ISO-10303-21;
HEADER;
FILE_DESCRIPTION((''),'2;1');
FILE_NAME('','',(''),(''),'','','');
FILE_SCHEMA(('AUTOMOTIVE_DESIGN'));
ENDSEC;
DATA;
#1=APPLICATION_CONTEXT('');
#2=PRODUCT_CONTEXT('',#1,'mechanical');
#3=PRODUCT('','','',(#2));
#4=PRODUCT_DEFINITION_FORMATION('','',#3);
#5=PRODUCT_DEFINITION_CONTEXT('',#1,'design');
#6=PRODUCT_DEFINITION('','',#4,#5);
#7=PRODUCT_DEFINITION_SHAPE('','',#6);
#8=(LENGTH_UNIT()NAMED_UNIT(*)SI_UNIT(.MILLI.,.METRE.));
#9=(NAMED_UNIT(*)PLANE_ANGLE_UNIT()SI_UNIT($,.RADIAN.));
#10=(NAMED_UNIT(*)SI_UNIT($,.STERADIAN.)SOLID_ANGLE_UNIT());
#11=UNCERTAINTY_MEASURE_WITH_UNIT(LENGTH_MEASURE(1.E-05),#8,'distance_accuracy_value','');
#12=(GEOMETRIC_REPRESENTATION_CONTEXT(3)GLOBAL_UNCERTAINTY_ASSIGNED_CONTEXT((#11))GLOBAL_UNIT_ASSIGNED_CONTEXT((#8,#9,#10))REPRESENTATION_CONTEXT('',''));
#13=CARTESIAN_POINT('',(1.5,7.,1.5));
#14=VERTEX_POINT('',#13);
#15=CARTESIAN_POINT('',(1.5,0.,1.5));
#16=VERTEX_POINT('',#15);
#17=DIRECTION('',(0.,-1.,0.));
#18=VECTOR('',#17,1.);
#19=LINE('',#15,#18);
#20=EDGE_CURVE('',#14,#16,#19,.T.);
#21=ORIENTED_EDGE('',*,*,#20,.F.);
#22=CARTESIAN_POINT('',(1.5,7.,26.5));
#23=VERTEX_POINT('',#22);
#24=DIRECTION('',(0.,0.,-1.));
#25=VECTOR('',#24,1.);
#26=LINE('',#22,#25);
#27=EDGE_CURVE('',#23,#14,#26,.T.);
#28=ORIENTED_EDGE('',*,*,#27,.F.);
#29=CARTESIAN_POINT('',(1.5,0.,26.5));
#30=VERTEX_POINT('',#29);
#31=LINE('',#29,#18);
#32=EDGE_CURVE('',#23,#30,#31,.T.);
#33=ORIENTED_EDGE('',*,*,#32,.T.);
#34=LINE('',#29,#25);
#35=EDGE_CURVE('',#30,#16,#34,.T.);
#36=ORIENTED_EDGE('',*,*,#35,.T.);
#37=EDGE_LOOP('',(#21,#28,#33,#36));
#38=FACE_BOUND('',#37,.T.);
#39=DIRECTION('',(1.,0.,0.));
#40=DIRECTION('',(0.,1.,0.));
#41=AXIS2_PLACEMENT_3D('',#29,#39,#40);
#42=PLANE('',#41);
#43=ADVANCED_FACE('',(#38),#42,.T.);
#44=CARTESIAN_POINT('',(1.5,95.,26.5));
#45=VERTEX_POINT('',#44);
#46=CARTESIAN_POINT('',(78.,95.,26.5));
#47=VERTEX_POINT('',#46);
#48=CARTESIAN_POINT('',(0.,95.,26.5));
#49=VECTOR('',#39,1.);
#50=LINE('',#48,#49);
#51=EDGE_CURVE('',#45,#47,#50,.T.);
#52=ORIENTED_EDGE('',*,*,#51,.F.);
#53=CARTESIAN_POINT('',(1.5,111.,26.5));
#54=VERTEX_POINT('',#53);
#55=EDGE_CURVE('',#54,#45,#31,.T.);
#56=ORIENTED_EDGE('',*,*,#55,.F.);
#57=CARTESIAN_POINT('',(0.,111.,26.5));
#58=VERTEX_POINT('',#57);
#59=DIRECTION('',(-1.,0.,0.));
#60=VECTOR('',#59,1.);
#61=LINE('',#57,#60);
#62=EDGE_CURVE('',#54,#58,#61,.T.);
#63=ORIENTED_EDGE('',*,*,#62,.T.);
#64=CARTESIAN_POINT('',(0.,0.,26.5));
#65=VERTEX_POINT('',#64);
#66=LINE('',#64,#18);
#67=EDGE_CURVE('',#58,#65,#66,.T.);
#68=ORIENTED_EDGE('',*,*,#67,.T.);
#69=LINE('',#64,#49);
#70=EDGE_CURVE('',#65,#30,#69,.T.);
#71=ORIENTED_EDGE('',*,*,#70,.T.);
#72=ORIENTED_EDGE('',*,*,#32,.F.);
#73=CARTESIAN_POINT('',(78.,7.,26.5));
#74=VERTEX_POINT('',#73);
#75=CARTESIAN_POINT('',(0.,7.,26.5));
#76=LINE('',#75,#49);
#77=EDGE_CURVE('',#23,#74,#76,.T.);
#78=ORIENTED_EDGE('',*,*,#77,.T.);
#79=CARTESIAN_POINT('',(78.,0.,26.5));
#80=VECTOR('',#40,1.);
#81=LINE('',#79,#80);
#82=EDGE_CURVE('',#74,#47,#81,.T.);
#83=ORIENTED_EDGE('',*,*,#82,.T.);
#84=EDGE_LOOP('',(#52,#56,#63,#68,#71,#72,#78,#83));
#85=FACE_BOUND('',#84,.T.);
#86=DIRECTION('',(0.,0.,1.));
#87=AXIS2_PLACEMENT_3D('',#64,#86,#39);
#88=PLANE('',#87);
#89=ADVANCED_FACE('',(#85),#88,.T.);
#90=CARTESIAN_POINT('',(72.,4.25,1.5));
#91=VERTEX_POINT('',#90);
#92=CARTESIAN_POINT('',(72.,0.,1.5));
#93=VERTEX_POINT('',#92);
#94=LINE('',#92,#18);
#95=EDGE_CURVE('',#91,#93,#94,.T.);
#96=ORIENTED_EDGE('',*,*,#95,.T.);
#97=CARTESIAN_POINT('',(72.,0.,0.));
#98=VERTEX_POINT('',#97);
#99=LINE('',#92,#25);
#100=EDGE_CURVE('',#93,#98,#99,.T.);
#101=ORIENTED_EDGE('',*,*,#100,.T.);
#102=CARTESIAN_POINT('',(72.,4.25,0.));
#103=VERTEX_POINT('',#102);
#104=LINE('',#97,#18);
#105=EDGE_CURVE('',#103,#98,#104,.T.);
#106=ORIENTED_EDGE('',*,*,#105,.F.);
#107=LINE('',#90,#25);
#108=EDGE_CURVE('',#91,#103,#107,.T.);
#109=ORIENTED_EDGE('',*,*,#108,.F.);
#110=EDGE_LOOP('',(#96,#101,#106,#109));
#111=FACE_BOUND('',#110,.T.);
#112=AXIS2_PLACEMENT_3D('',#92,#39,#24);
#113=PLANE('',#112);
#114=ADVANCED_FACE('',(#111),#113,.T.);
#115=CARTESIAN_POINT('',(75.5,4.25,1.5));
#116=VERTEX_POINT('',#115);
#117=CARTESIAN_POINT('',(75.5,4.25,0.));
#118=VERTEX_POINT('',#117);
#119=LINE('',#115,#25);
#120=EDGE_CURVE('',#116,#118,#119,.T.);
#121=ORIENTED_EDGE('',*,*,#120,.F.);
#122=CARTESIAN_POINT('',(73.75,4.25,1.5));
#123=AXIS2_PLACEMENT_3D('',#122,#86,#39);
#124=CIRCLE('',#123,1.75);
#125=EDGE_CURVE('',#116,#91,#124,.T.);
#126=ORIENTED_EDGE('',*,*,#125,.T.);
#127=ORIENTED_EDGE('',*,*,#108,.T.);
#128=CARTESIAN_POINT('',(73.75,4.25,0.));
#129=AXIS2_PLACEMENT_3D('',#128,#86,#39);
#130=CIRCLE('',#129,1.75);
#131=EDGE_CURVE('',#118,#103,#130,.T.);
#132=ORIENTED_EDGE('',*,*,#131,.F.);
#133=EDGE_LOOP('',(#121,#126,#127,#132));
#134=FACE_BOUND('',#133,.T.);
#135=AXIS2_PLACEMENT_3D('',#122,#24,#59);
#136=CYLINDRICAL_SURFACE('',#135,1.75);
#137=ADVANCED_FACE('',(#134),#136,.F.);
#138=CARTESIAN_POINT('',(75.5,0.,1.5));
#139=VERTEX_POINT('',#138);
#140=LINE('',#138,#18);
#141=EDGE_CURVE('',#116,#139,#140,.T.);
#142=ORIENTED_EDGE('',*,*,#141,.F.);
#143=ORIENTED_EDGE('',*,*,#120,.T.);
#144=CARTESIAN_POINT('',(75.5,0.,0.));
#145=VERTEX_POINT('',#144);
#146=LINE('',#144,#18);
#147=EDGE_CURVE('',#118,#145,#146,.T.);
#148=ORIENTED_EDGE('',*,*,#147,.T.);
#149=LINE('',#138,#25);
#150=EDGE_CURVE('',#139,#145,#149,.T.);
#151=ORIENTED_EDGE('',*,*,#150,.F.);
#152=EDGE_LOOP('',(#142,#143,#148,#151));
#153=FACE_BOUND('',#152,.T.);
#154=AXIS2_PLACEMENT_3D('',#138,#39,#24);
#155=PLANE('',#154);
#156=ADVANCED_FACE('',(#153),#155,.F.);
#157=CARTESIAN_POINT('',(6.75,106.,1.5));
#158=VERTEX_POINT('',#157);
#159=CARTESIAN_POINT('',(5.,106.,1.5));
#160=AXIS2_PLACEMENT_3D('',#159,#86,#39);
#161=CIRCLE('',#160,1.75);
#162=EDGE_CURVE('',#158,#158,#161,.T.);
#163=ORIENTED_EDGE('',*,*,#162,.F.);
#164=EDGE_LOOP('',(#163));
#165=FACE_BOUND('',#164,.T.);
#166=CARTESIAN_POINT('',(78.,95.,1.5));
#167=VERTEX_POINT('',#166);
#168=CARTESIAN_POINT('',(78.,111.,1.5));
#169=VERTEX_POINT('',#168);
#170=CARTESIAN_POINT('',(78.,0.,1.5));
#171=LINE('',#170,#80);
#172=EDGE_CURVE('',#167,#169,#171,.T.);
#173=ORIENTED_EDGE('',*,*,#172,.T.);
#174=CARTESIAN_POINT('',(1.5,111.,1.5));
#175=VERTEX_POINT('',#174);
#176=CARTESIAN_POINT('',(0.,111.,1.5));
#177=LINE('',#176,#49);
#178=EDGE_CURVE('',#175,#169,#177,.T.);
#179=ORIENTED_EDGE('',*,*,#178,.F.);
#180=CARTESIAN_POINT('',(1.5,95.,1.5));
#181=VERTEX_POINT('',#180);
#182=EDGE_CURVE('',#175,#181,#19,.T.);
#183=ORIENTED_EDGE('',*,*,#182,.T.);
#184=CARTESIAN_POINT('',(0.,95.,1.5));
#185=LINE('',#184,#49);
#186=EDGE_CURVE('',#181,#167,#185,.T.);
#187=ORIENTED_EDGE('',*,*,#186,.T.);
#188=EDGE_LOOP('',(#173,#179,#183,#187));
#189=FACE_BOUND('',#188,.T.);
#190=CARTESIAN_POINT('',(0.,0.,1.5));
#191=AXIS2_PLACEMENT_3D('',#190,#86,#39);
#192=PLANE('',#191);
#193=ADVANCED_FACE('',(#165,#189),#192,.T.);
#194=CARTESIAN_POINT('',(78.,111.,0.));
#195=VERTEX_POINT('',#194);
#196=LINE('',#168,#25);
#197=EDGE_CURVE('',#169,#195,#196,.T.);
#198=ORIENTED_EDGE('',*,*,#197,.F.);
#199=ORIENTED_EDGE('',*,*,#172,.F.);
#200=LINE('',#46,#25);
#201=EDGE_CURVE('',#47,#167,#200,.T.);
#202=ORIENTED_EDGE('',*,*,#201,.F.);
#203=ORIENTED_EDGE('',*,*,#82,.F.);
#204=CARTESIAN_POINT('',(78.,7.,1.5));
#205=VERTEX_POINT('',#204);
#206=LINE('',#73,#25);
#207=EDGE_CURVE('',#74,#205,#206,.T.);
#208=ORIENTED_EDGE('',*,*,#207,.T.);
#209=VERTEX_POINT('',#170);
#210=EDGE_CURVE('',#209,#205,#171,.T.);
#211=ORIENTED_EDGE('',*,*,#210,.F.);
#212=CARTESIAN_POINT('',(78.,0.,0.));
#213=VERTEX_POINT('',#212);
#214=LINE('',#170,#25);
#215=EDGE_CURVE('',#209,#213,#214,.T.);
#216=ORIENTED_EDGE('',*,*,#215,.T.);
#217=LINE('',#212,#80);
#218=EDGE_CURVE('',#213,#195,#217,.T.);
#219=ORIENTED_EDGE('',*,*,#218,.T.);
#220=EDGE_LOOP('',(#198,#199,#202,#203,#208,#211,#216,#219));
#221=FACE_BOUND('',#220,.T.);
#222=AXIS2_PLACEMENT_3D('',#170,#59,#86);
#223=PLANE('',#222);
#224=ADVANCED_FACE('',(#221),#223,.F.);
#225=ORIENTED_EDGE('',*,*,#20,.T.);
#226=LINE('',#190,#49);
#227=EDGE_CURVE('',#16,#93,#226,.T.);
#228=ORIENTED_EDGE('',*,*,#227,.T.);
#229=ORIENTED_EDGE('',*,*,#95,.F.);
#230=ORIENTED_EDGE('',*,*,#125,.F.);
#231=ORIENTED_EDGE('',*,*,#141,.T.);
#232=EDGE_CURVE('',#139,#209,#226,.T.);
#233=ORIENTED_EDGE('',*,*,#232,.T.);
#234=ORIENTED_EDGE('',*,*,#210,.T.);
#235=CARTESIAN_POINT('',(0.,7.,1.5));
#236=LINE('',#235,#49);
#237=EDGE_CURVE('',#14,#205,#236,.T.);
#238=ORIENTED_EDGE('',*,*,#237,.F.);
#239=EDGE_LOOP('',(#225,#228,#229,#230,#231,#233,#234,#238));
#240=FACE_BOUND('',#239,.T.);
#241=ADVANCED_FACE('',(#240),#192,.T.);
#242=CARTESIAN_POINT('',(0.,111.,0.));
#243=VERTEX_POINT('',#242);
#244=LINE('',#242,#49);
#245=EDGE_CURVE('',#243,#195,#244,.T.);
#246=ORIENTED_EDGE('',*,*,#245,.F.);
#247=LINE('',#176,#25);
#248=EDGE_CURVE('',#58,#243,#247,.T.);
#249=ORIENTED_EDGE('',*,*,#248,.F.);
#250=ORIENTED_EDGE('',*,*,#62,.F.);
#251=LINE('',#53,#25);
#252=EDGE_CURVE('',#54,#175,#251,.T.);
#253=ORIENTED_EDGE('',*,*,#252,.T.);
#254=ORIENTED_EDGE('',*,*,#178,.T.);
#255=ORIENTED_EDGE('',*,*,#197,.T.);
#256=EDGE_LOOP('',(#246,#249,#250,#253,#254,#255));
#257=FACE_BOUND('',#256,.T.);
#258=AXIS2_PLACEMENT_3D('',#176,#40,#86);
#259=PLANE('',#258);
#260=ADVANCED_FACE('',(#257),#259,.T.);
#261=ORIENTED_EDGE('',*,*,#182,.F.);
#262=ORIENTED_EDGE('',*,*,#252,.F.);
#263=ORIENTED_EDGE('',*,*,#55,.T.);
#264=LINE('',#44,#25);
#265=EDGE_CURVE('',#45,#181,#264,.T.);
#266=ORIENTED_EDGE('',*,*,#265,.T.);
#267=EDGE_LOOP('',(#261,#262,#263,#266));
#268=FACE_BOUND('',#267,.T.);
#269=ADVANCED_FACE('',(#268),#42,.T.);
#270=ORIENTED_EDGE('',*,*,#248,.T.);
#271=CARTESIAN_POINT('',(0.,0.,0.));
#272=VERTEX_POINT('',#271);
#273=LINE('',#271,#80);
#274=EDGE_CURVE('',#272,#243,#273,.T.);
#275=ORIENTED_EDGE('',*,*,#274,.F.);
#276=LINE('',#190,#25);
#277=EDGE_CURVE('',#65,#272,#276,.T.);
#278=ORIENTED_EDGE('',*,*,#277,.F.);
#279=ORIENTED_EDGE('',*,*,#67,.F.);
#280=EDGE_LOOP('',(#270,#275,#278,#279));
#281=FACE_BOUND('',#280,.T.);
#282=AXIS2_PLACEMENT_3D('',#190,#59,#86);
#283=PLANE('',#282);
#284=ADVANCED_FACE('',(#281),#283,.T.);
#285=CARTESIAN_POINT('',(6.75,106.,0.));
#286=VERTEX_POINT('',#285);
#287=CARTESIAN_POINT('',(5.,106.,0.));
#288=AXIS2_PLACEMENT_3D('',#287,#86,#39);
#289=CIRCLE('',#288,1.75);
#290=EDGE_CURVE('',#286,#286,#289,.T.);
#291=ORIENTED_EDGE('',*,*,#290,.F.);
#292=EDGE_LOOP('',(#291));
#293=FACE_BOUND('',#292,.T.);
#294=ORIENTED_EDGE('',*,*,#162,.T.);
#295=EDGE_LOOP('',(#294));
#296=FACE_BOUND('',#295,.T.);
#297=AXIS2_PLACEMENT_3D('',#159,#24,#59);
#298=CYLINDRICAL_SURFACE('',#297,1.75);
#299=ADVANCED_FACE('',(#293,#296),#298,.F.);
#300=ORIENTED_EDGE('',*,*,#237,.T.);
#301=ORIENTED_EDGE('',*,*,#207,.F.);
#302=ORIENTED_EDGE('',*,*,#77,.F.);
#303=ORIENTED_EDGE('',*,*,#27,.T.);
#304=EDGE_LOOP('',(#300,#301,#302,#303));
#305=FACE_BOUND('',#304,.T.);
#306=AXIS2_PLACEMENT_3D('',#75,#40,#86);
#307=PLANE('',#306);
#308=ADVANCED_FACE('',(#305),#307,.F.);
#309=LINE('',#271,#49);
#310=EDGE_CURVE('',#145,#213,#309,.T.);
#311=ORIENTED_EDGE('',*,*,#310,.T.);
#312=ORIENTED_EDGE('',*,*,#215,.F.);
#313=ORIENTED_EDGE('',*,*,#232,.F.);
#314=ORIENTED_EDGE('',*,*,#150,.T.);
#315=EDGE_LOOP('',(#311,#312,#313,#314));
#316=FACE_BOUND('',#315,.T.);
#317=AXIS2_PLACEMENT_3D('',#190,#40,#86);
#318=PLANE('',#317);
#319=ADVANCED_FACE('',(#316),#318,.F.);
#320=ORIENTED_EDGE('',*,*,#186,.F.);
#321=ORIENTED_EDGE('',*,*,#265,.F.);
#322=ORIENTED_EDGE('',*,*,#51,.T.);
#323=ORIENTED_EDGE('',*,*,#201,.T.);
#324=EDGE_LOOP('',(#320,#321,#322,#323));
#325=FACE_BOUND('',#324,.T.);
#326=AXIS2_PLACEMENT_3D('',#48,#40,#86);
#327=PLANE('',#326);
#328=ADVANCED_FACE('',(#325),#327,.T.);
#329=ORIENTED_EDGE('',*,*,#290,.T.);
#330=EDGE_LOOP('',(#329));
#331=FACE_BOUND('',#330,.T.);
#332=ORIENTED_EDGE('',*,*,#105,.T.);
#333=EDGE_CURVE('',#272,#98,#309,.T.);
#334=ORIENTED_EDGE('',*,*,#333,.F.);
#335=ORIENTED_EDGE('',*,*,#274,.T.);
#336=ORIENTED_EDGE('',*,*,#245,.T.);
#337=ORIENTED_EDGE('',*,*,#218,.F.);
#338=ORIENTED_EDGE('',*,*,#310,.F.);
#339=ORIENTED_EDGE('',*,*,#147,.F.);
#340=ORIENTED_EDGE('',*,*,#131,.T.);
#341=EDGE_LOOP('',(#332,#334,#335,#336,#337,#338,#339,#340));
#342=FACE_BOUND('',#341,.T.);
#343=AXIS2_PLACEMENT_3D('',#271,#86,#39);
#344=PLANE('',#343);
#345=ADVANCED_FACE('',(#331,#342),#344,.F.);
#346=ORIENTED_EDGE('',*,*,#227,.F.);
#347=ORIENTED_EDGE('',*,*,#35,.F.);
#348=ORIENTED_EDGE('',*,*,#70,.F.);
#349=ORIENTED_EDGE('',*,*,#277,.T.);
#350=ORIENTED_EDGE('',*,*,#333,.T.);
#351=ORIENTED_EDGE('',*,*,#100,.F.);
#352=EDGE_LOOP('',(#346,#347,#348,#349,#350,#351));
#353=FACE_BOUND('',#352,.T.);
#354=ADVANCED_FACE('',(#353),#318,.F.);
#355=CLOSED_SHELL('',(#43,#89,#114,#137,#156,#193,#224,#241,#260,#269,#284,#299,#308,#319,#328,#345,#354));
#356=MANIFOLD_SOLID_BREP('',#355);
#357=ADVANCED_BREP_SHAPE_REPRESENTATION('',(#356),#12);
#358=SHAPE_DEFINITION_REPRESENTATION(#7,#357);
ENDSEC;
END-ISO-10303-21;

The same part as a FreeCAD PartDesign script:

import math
import FreeCAD as App
import Part
import Sketcher
from FreeCAD import Vector


def add_polygon(sketch, points):
    """Adds a closed chain of lines whose ends are joined by coincident constraints."""
    first, n = sketch.GeometryCount, len(points)
    for a, b in zip(points, points[1:] + points[:1]):
        sketch.addGeometry(Part.LineSegment(App.Vector(*a, 0), App.Vector(*b, 0)), False)
    for i in range(n):
        sketch.addConstraint(Sketcher.Constraint("Coincident", first + i, 2, first + (i + 1) % n, 1))

doc = App.newDocument("Part")
body = doc.addObject("PartDesign::Body", "Body")

sketch1 = body.newObject("Sketcher::SketchObject", "Sketch")
sketch1.AttachmentSupport = (doc.getObject("XY_Plane"), [""])
sketch1.MapMode = "FlatFace"
sketch1.addGeometry([
    Part.LineSegment(Vector(72, 0, 0), Vector(72, 4.2, 0)),
    Part.ArcOfCircle(Part.Circle(Vector(73.8, 4.2, 0), Vector(0, 0, 1), 1.8), math.radians(0), math.radians(180)),
    Part.LineSegment(Vector(75.5, 4.2, 0), Vector(75.5, 0, 0)),
    Part.LineSegment(Vector(75.5, 0, 0), Vector(78, 0, 0)),
    Part.LineSegment(Vector(78, 0, 0), Vector(78, 111, 0)),
    Part.LineSegment(Vector(78, 111, 0), Vector(0, 111, 0)),
    Part.LineSegment(Vector(0, 111, 0), Vector(0, 0, 0)),
    Part.LineSegment(Vector(0, 0, 0), Vector(72, 0, 0)),
    Part.Circle(Vector(5, 106, 0), Vector(0, 0, 1), 1.8),
], False)
sketch1.addConstraint([
    Sketcher.Constraint("Tangent", 0, 2, 1, 2),
    Sketcher.Constraint("Tangent", 1, 1, 2, 1),
    Sketcher.Constraint("Coincident", 2, 2, 3, 1),
    Sketcher.Constraint("Coincident", 3, 2, 4, 1),
    Sketcher.Constraint("Coincident", 4, 2, 5, 1),
    Sketcher.Constraint("Coincident", 5, 2, 6, 1),
    Sketcher.Constraint("Coincident", 6, 2, 7, 1),
    Sketcher.Constraint("Coincident", 7, 2, 0, 1),
    Sketcher.Constraint("Vertical", 0),
    Sketcher.Constraint("Vertical", 2),
    Sketcher.Constraint("Horizontal", 3),
    Sketcher.Constraint("Vertical", 4),
    Sketcher.Constraint("Horizontal", 5),
    Sketcher.Constraint("Vertical", 6),
    Sketcher.Constraint("Horizontal", 7),
    Sketcher.Constraint("Coincident", 6, 2, -1, 1),
    Sketcher.Constraint("Equal", 1, 8),
    Sketcher.Constraint("PointOnObject", 2, 2, -1),
    Sketcher.Constraint("Diameter", 8, 3.5),
    Sketcher.Constraint("DistanceX", 5, 2, 5, 1, 78.0),
    Sketcher.Constraint("DistanceX", 7, 1, 7, 2, 72.0),
    Sketcher.Constraint("DistanceY", 4, 1, 4, 2, 111.0),
    Sketcher.Constraint("DistanceX", -1, 1, 8, 3, 5.0),
    Sketcher.Constraint("DistanceY", -1, 1, 8, 3, 106.0),
    Sketcher.Constraint("DistanceY", 0, 1, 0, 2, 4.25),
])
pad1 = body.newObject("PartDesign::Pad", "Pad")
pad1.Profile = sketch1
pad1.Length = 1.5

sketch2 = body.newObject("Sketcher::SketchObject", "Sketch001")
sketch2.AttachmentSupport = (doc.getObject("XY_Plane"), [""])
sketch2.MapMode = "FlatFace"
sketch2.AttachmentOffset = App.Placement(Vector(0, 0, 1.5), App.Rotation())
add_polygon(sketch2, [(1.5, 7), (78, 7), (78, 95), (1.5, 95), (1.5, 111), (0, 111), (0, 0), (1.5, 0)])
sketch2.addConstraint([
    Sketcher.Constraint("Horizontal", 0),
    Sketcher.Constraint("Vertical", 1),
    Sketcher.Constraint("Horizontal", 2),
    Sketcher.Constraint("Vertical", 3),
    Sketcher.Constraint("Horizontal", 4),
    Sketcher.Constraint("Vertical", 5),
    Sketcher.Constraint("Horizontal", 6),
    Sketcher.Constraint("Vertical", 7),
    Sketcher.Constraint("Coincident", 5, 2, -1, 1),
    Sketcher.Constraint("Vertical", 3, 2, 6, 2),
    Sketcher.Constraint("DistanceY", 1, 1, 1, 2, 88.0),
    Sketcher.Constraint("DistanceY", 3, 1, 3, 2, 16.0),
    Sketcher.Constraint("DistanceY", 5, 2, 5, 1, 111.0),
    Sketcher.Constraint("DistanceX", 0, 1, 0, 2, 76.5),
    Sketcher.Constraint("DistanceX", 4, 2, 4, 1, 1.5),
])
pad2 = body.newObject("PartDesign::Pad", "Pad001")
pad2.Profile = sketch2
pad2.Length = 25

doc.recompute()
